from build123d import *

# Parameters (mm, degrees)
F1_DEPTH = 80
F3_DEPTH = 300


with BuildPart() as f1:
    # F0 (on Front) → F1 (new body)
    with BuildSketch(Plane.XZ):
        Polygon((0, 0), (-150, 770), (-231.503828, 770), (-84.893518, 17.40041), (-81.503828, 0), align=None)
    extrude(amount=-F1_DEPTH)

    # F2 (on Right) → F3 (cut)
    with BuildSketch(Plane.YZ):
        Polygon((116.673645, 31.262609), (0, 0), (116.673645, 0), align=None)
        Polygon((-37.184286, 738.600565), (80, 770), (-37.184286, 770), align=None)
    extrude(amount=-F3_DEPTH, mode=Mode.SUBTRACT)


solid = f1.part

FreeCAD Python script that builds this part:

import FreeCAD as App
import Part
import Sketcher
from FreeCAD import Vector
Q = App.Units.Quantity

doc = App.newDocument("Part")
body = doc.addObject("PartDesign::Body", "Body")

# Sketch on XZ plane
sketch1 = body.newObject("Sketcher::SketchObject", "Sketch")
sketch1.AttachmentSupport = (doc.getObject("XZ_Plane"), [""])
sketch1.MapMode = "FlatFace"
sketch1.addGeometry([
    Part.LineSegment(Vector(0, 0, 0), Vector(-150, 770, 0)),  # 0
    Part.LineSegment(Vector(-150, 770, 0), Vector(-232, 770, 0)),  # 1
    Part.LineSegment(Vector(-232, 770, 0), Vector(-85, 17, 0)),  # 2
    Part.LineSegment(Vector(-85, 17, 0), Vector(-82, 0, 0)),  # 3
    Part.LineSegment(Vector(-82, 0, 0), Vector(0, 0, 0)),  # 4
], False)
sketch1.addConstraint([
    Sketcher.Constraint("Coincident", 0, 2, 1, 1),
    Sketcher.Constraint("Coincident", 1, 2, 2, 1),
    Sketcher.Constraint("Coincident", 2, 2, 3, 1),
    Sketcher.Constraint("Coincident", 3, 2, 4, 1),
    Sketcher.Constraint("Coincident", 4, 2, 0, 1),
    Sketcher.Constraint("Horizontal", 1),
    Sketcher.Constraint("Horizontal", 4),
    Sketcher.Constraint("Coincident", 4, 2, -1, 1),
    Sketcher.Constraint("Parallel", 0, 2),
    Sketcher.Constraint("Parallel", 2, 3),
    Sketcher.Constraint("DistanceX", 0, 2, -1, 1, 150.0),
    Sketcher.Constraint("DistanceY", -1, 1, 0, 2, 770.0),
    Sketcher.Constraint("Distance", 3, 17.7275),
    Sketcher.Constraint("DistanceX", 1, 2, 1, 1, 81.503828),
])
pad1 = body.newObject("PartDesign::Pad", "Pad")
pad1.Profile = sketch1
pad1.Length = 80
pad1.Reversed = True

# Sketch on YZ plane
sketch2 = body.newObject("Sketcher::SketchObject", "Sketch001")
sketch2.AttachmentSupport = (doc.getObject("YZ_Plane"), [""])
sketch2.MapMode = "FlatFace"
sketch2.addGeometry([
    Part.LineSegment(Vector(117, 31, 0), Vector(0, 0, 0)),  # 0
    Part.LineSegment(Vector(0, 0, 0), Vector(117, 0, 0)),  # 1
    Part.LineSegment(Vector(117, 0, 0), Vector(117, 31, 0)),  # 2
    Part.LineSegment(Vector(-37, 739, 0), Vector(80, 770, 0)),  # 3
    Part.LineSegment(Vector(80, 770, 0), Vector(-37, 770, 0)),  # 4
    Part.LineSegment(Vector(-37, 770, 0), Vector(-37, 739, 0)),  # 5
], False)
sketch2.addConstraint([
    Sketcher.Constraint("Coincident", 0, 2, 1, 1),
    Sketcher.Constraint("Coincident", 1, 2, 2, 1),
    Sketcher.Constraint("Coincident", 2, 2, 0, 1),
    Sketcher.Constraint("Coincident", 3, 2, 4, 1),
    Sketcher.Constraint("Coincident", 4, 2, 5, 1),
    Sketcher.Constraint("Coincident", 5, 2, 3, 1),
    Sketcher.Constraint("Horizontal", 1),
    Sketcher.Constraint("Vertical", 2),
    Sketcher.Constraint("Horizontal", 4),
    Sketcher.Constraint("Vertical", 5),
    Sketcher.Constraint("Coincident", 0, 2, -1, 1),
    Sketcher.Constraint("Parallel", 0, 3),
    Sketcher.Constraint("Angle", 0, Q("-165 deg")),
    Sketcher.Constraint("DistanceX", -1, 1, 3, 2, 80.0),
    Sketcher.Constraint("DistanceY", -1, 1, 3, 2, 770.0),
    Sketcher.Constraint("Distance", 3, 121.3181),
    Sketcher.Constraint("DistanceY", 2, 1, 2, 2, 31.262609),
])
pocket1 = body.newObject("PartDesign::Pocket", "Pocket")
pocket1.Profile = sketch2
pocket1.Length = 300

doc.recompute()
